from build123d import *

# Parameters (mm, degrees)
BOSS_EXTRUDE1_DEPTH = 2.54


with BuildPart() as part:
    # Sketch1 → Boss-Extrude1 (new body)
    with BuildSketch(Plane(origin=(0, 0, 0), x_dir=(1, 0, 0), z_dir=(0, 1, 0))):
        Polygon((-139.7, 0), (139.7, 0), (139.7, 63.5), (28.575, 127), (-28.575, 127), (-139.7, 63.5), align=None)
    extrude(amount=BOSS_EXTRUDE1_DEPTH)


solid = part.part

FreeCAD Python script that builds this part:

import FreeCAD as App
import Part
import Sketcher

V = App.Vector
Q = App.Units.Quantity

doc = App.newDocument("Part")
body = doc.addObject("PartDesign::Body", "Body")

sketch1 = body.newObject("Sketcher::SketchObject", "Sketch")
sketch1.AttachmentSupport = (doc.getObject("XZ_Plane"), [""])
sketch1.MapMode = "FlatFace"
sketch1.addGeometry(Part.LineSegment(V(-140, 0, 0), V(140, 0, 0)), False)
sketch1.addGeometry(Part.LineSegment(V(140, 0, 0), V(140, -64, 0)), False)
sketch1.addGeometry(Part.LineSegment(V(140, -64, 0), V(29, -127, 0)), False)
sketch1.addGeometry(Part.LineSegment(V(29, -127, 0), V(-29, -127, 0)), False)
sketch1.addGeometry(Part.LineSegment(V(-29, -127, 0), V(-140, -64, 0)), False)
sketch1.addGeometry(Part.LineSegment(V(-140, -64, 0), V(-140, 0, 0)), False)
sketch1.addConstraint(Sketcher.Constraint("Coincident", 0, 2, 1, 1))
sketch1.addConstraint(Sketcher.Constraint("Coincident", 1, 2, 2, 1))
sketch1.addConstraint(Sketcher.Constraint("Coincident", 2, 2, 3, 1))
sketch1.addConstraint(Sketcher.Constraint("Coincident", 3, 2, 4, 1))
sketch1.addConstraint(Sketcher.Constraint("Coincident", 4, 2, 5, 1))
sketch1.addConstraint(Sketcher.Constraint("Coincident", 5, 2, 0, 1))
sketch1.addConstraint(Sketcher.Constraint("Horizontal", 0))
sketch1.addConstraint(Sketcher.Constraint("Vertical", 1))
sketch1.addConstraint(Sketcher.Constraint("Horizontal", 3))
sketch1.addConstraint(Sketcher.Constraint("Vertical", 5))
sketch1.addConstraint(Sketcher.Constraint("Symmetric", 0, 2, 5, 2, -1, 1))
sketch1.addConstraint(Sketcher.Constraint("Horizontal", 1, 2, 4, 2))
sketch1.addConstraint(Sketcher.Constraint("Equal", 2, 4))
sketch1.addConstraint(Sketcher.Constraint("DistanceX", 0, 1, 0, 2, Q("11 in")))
sketch1.addConstraint(Sketcher.Constraint("DistanceY", 1, 2, 1, 1, Q("2.5 in")))
sketch1.addConstraint(Sketcher.Constraint("DistanceY", 2, 2, -1, 1, Q("5 in")))
sketch1.addConstraint(Sketcher.Constraint("DistanceX", 3, 2, 3, 1, Q("2.25 in")))
pad1 = body.newObject("PartDesign::Pad", "Pad")
pad1.Profile = sketch1
pad1.Length = Q("0.1 in")
pad1.Reversed = True

doc.recompute()
